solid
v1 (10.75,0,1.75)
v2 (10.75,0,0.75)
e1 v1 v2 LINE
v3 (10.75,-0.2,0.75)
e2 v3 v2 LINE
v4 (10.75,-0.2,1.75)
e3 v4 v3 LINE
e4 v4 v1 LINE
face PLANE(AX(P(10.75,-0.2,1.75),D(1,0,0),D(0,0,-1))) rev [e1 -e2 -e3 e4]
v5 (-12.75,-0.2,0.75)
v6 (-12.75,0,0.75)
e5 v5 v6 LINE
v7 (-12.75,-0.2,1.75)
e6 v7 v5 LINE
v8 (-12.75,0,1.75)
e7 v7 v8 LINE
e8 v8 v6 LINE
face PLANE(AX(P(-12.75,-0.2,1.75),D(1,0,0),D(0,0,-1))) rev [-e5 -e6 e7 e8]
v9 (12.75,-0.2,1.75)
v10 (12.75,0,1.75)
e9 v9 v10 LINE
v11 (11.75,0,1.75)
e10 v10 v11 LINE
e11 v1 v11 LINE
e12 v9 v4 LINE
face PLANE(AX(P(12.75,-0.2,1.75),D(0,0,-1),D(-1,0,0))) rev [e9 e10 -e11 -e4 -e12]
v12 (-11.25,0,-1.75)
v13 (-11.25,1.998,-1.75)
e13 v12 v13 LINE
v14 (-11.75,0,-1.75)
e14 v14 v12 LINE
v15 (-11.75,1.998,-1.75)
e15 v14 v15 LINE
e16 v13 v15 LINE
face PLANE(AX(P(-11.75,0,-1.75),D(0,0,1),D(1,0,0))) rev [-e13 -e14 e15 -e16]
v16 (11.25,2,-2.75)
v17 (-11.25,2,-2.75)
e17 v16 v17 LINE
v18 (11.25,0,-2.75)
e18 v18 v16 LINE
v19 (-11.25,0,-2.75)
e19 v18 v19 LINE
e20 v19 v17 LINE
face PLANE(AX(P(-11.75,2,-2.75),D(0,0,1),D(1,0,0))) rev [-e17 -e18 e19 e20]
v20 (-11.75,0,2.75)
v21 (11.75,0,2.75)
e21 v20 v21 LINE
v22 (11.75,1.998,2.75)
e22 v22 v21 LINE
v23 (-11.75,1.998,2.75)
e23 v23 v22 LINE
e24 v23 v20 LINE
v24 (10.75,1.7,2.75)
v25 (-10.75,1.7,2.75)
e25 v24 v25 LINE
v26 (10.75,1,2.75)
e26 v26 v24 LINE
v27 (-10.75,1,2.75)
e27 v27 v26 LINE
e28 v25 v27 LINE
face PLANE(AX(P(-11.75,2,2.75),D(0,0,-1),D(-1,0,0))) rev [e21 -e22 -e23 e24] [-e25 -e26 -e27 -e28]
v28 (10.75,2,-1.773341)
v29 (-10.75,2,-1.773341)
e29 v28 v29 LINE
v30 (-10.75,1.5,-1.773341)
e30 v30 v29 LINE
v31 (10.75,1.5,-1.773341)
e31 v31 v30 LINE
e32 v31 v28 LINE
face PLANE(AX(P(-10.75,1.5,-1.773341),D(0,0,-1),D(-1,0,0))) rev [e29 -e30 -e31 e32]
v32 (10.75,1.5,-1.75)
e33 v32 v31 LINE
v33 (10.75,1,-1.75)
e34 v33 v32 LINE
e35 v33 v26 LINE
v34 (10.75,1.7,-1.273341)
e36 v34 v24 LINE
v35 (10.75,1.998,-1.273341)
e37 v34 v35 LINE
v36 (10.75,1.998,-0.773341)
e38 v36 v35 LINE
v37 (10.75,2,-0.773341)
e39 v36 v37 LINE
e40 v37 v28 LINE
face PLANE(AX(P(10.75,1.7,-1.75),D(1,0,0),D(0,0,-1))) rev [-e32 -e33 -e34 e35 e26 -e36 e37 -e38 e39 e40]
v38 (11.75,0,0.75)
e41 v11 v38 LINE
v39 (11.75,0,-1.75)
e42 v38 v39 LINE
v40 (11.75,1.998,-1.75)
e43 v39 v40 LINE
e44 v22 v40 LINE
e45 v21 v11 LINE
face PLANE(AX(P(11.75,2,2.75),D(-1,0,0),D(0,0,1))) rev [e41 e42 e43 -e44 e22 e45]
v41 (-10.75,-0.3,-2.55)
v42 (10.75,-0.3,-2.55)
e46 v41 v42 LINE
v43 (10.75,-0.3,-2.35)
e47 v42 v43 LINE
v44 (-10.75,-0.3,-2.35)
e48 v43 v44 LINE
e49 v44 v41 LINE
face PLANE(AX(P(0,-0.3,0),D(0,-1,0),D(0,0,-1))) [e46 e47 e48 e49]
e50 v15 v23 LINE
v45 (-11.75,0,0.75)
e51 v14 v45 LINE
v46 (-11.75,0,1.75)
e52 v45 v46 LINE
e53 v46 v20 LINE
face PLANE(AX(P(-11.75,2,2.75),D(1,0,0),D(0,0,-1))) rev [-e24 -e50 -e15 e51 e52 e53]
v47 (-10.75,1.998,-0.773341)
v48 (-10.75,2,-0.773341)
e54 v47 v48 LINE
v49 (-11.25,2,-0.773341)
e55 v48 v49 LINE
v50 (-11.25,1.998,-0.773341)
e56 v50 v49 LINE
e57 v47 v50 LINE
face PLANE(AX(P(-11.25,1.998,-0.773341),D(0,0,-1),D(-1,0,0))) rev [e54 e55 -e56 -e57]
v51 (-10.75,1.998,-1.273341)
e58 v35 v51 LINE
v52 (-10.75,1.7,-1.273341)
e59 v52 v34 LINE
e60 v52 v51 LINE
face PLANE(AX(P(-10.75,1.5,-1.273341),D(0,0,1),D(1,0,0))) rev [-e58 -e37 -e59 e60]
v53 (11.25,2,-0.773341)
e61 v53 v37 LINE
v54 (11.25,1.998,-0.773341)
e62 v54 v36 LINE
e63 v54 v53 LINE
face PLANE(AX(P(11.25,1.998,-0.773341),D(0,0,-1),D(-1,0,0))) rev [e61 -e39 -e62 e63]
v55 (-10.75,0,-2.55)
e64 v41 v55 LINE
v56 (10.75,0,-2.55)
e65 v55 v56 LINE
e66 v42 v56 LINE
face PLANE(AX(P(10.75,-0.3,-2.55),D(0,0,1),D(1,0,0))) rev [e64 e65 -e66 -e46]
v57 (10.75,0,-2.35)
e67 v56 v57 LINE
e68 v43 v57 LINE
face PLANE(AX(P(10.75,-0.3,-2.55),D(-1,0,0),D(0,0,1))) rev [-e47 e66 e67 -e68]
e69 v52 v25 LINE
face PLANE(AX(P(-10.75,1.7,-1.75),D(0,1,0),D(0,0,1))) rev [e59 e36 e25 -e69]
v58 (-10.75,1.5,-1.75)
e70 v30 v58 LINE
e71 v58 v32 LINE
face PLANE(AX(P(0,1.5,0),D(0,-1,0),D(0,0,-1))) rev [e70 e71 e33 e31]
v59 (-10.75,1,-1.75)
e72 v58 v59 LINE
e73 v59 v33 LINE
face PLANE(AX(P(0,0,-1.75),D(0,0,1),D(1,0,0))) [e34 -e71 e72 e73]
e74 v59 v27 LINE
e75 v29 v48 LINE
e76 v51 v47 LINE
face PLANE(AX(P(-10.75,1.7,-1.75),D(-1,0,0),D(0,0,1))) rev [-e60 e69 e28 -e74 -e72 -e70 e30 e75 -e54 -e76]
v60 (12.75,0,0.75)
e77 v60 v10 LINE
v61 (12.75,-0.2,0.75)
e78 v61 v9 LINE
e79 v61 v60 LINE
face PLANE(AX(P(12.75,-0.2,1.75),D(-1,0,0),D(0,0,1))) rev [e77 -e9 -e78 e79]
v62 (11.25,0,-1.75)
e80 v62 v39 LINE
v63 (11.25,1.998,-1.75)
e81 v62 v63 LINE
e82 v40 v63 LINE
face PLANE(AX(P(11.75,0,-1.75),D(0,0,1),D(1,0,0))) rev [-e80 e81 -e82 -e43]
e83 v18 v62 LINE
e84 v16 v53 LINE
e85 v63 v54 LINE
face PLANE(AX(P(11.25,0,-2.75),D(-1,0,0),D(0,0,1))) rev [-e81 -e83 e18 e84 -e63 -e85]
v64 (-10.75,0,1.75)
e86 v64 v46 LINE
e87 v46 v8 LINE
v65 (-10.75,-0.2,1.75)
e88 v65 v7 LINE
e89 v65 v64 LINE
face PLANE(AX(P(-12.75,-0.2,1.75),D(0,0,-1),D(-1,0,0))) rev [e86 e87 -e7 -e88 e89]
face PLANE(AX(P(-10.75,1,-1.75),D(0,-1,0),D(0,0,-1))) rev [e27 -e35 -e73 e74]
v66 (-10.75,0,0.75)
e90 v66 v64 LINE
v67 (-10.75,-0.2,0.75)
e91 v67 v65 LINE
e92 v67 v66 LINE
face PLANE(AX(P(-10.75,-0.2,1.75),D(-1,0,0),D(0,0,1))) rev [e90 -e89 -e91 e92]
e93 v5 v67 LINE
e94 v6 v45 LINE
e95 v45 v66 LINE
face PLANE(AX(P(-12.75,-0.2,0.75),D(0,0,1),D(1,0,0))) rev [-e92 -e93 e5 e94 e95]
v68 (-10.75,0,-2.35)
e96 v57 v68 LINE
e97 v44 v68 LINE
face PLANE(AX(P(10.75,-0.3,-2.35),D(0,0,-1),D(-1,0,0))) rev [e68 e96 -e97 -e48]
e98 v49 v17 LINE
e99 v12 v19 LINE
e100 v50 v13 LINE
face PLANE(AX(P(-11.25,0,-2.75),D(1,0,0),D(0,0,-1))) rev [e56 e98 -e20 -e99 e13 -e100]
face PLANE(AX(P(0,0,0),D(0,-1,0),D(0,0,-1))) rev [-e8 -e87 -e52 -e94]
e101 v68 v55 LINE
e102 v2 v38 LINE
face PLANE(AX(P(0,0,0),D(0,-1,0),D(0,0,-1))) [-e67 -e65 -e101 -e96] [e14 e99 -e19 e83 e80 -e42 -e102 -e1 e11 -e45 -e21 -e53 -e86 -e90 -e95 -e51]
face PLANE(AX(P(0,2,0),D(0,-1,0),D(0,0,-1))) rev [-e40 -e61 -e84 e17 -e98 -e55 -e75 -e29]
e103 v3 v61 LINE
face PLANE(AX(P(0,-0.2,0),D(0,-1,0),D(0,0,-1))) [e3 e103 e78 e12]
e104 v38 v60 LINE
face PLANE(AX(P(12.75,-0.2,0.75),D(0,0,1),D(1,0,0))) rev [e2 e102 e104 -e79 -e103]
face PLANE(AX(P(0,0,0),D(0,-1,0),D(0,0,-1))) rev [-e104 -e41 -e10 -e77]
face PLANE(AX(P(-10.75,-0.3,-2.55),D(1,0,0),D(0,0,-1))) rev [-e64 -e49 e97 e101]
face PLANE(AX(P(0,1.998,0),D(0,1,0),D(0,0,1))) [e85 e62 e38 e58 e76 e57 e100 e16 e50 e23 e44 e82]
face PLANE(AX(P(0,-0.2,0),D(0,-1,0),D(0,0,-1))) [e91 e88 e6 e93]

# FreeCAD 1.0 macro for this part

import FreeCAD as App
import Part
import Sketcher
from FreeCAD import Vector

doc = App.newDocument("Part")
body = doc.addObject("PartDesign::Body", "Body")

sketch1 = body.newObject("Sketcher::SketchObject", "Sketch")
sketch1.AttachmentSupport = (doc.getObject("XZ_Plane"), [""])
sketch1.MapMode = "FlatFace"
sketch1.addGeometry([
    Part.LineSegment(Vector(-12, -3, 0), Vector(-12, 3, 0)),
    Part.LineSegment(Vector(-12, 3, 0), Vector(12, 3, 0)),
    Part.LineSegment(Vector(12, 3, 0), Vector(12, -3, 0)),
    Part.LineSegment(Vector(12, -3, 0), Vector(-12, -3, 0)),
], False)
sketch1.addConstraint([
    Sketcher.Constraint("Coincident", 0, 2, 1, 1),
    Sketcher.Constraint("Coincident", 1, 2, 2, 1),
    Sketcher.Constraint("Coincident", 2, 2, 3, 1),
    Sketcher.Constraint("Coincident", 3, 2, 0, 1),
    Sketcher.Constraint("Vertical", 0),
    Sketcher.Constraint("Horizontal", 1),
    Sketcher.Constraint("Vertical", 2),
    Sketcher.Constraint("Horizontal", 3),
    Sketcher.Constraint("Symmetric", 0, 2, 2, 2, -1, 1),
    Sketcher.Constraint("DistanceX", 1, 1, 1, 2, 23.5),
    Sketcher.Constraint("DistanceY", 0, 1, 0, 2, 5.5),
])
pad1 = body.newObject("PartDesign::Pad", "Pad")
pad1.Profile = sketch1
pad1.Length = 2
pad1.Reversed = True

sketch2 = body.newObject("Sketcher::SketchObject", "Sketch001")
sketch2.AttachmentSupport = (doc.getObject("XZ_Plane"), [""])
sketch2.MapMode = "FlatFace"
sketch2.AttachmentOffset = App.Placement(Vector(0, 0, -2), App.Rotation())
sketch2.addGeometry([
    Part.LineSegment(Vector(-11.8, -2.8, 0), Vector(-11.8, -1.8, 0)),
    Part.LineSegment(Vector(-11.8, -1.8, 0), Vector(-11.2, -1.8, 0)),
    Part.LineSegment(Vector(-11.2, -1.8, 0), Vector(-11.2, -2.8, 0)),
    Part.LineSegment(Vector(-11.2, -2.8, 0), Vector(-11.8, -2.8, 0)),
    Part.LineSegment(Vector(11.2, -2.8, 0), Vector(11.2, -1.8, 0)),
    Part.LineSegment(Vector(11.2, -1.8, 0), Vector(11.8, -1.8, 0)),
    Part.LineSegment(Vector(11.8, -1.8, 0), Vector(11.8, -2.8, 0)),
    Part.LineSegment(Vector(11.8, -2.8, 0), Vector(11.2, -2.8, 0)),
], False)
sketch2.addConstraint([
    Sketcher.Constraint("Coincident", 0, 2, 1, 1),
    Sketcher.Constraint("Coincident", 1, 2, 2, 1),
    Sketcher.Constraint("Coincident", 2, 2, 3, 1),
    Sketcher.Constraint("Coincident", 3, 2, 0, 1),
    Sketcher.Constraint("Coincident", 4, 2, 5, 1),
    Sketcher.Constraint("Coincident", 5, 2, 6, 1),
    Sketcher.Constraint("Coincident", 6, 2, 7, 1),
    Sketcher.Constraint("Coincident", 7, 2, 4, 1),
    Sketcher.Constraint("Vertical", 0),
    Sketcher.Constraint("Horizontal", 1),
    Sketcher.Constraint("Vertical", 2),
    Sketcher.Constraint("Horizontal", 3),
    Sketcher.Constraint("Vertical", 4),
    Sketcher.Constraint("Horizontal", 5),
    Sketcher.Constraint("Vertical", 6),
    Sketcher.Constraint("Horizontal", 7),
    Sketcher.Constraint("Symmetric", 1, 2, 4, 2, -2),
    Sketcher.Constraint("Symmetric", 3, 2, 6, 2, -2),
    Sketcher.Constraint("DistanceY", 0, 1, 0, 2, 1.0),
    Sketcher.Constraint("DistanceX", 1, 1, 1, 2, 0.5),
    Sketcher.Constraint("DistanceX", 0, 2, 4, 2, 23.0),
    Sketcher.Constraint("DistanceY", 0, 2, -1, 1, 1.75),
])
pocket1 = body.newObject("PartDesign::Pocket", "Pocket")
pocket1.Profile = sketch2
pocket1.Type = "ThroughAll"
pocket1.Reversed = True

sketch3 = body.newObject("Sketcher::SketchObject", "Sketch002")
sketch3.AttachmentSupport = (doc.getObject("XZ_Plane"), [""])
sketch3.MapMode = "FlatFace"
sketch3.addGeometry([
    Part.LineSegment(Vector(-12.8, 1.8, 0), Vector(-12.8, 0.8, 0)),
    Part.LineSegment(Vector(-12.8, 0.8, 0), Vector(-10.8, 0.8, 0)),
    Part.LineSegment(Vector(-10.8, 0.8, 0), Vector(-10.8, 1.8, 0)),
    Part.LineSegment(Vector(-10.8, 1.8, 0), Vector(-12.8, 1.8, 0)),
    Part.LineSegment(Vector(10.8, 1.8, 0), Vector(10.8, 0.8, 0)),
    Part.LineSegment(Vector(10.8, 0.8, 0), Vector(12.8, 0.8, 0)),
    Part.LineSegment(Vector(12.8, 0.8, 0), Vector(12.8, 1.8, 0)),
    Part.LineSegment(Vector(12.8, 1.8, 0), Vector(10.8, 1.8, 0)),
], False)
sketch3.addConstraint([
    Sketcher.Constraint("Coincident", 0, 2, 1, 1),
    Sketcher.Constraint("Coincident", 1, 2, 2, 1),
    Sketcher.Constraint("Coincident", 2, 2, 3, 1),
    Sketcher.Constraint("Coincident", 3, 2, 0, 1),
    Sketcher.Constraint("Coincident", 4, 2, 5, 1),
    Sketcher.Constraint("Coincident", 5, 2, 6, 1),
    Sketcher.Constraint("Coincident", 6, 2, 7, 1),
    Sketcher.Constraint("Coincident", 7, 2, 4, 1),
    Sketcher.Constraint("Vertical", 0),
    Sketcher.Constraint("Horizontal", 1),
    Sketcher.Constraint("Vertical", 2),
    Sketcher.Constraint("Horizontal", 3),
    Sketcher.Constraint("Vertical", 4),
    Sketcher.Constraint("Horizontal", 5),
    Sketcher.Constraint("Vertical", 6),
    Sketcher.Constraint("Horizontal", 7),
    Sketcher.Constraint("Symmetric", 1, 2, 4, 2, -2),
    Sketcher.Constraint("Symmetric", 3, 2, 6, 2, -2),
    Sketcher.Constraint("DistanceX", 1, 1, 1, 2, 2.0),
    Sketcher.Constraint("DistanceY", 0, 2, 0, 1, 1.0),
    Sketcher.Constraint("DistanceX", 1, 2, 4, 2, 21.5),
    Sketcher.Constraint("DistanceY", -1, 1, 0, 2, 0.75),
])
pad2 = body.newObject("PartDesign::Pad", "Pad001")
pad2.Profile = sketch3
pad2.Length = 0.2

sketch4 = body.newObject("Sketcher::SketchObject", "Sketch003")
sketch4.AttachmentSupport = (doc.getObject("XZ_Plane"), [""])
sketch4.MapMode = "FlatFace"
sketch4.addGeometry([
    Part.LineSegment(Vector(-10.75, -2.35, 0), Vector(-10.75, -2.55, 0)),
    Part.LineSegment(Vector(-10.75, -2.55, 0), Vector(10.75, -2.55, 0)),
    Part.LineSegment(Vector(10.75, -2.55, 0), Vector(10.75, -2.35, 0)),
    Part.LineSegment(Vector(10.75, -2.35, 0), Vector(-10.75, -2.35, 0)),
], False)
sketch4.addConstraint([
    Sketcher.Constraint("Coincident", 0, 2, 1, 1),
    Sketcher.Constraint("Coincident", 1, 2, 2, 1),
    Sketcher.Constraint("Coincident", 2, 2, 3, 1),
    Sketcher.Constraint("Coincident", 3, 2, 0, 1),
    Sketcher.Constraint("Vertical", 0),
    Sketcher.Constraint("Horizontal", 1),
    Sketcher.Constraint("Vertical", 2),
    Sketcher.Constraint("Horizontal", 3),
    Sketcher.Constraint("DistanceX", 1, 1, 1, 2, 21.5),
    Sketcher.Constraint("DistanceY", 0, 2, 0, 1, 0.2),
    Sketcher.Constraint("DistanceX", 0, 2, -1, 1, 10.75),
    Sketcher.Constraint("DistanceY", 0, 2, -1, 1, 2.55),
])
pad3 = body.newObject("PartDesign::Pad", "Pad002")
pad3.Profile = sketch4
pad3.Length = 0.3

sketch5 = body.newObject("Sketcher::SketchObject", "Sketch004")
sketch5.AttachmentSupport = (doc.getObject("XY_Plane"), [""])
sketch5.MapMode = "FlatFace"
sketch5.AttachmentOffset = App.Placement(Vector(0, 0, 2.75), App.Rotation())
sketch5.addGeometry([
    Part.LineSegment(Vector(-10.8, 1.7, 0), Vector(-10.8, 1, 0)),
    Part.LineSegment(Vector(-10.8, 1, 0), Vector(10.8, 1, 0)),
    Part.LineSegment(Vector(10.8, 1, 0), Vector(10.8, 1.7, 0)),
    Part.LineSegment(Vector(10.8, 1.7, 0), Vector(-10.8, 1.7, 0)),
], False)
sketch5.addConstraint([
    Sketcher.Constraint("Coincident", 0, 2, 1, 1),
    Sketcher.Constraint("Coincident", 1, 2, 2, 1),
    Sketcher.Constraint("Coincident", 2, 2, 3, 1),
    Sketcher.Constraint("Coincident", 3, 2, 0, 1),
    Sketcher.Constraint("Vertical", 0),
    Sketcher.Constraint("Horizontal", 1),
    Sketcher.Constraint("Vertical", 2),
    Sketcher.Constraint("Horizontal", 3),
    Sketcher.Constraint("DistanceX", 1, 1, 1, 2, 21.5),
    Sketcher.Constraint("DistanceY", 0, 2, 0, 1, 0.7),
    Sketcher.Constraint("DistanceY", -1, 1, 0, 2, 1.0),
    Sketcher.Constraint("DistanceX", 0, 2, -1, 1, 10.75),
])
pocket2 = body.newObject("PartDesign::Pocket", "Pocket001")
pocket2.Profile = sketch5
pocket2.Length = 4.5

sketch6 = body.newObject("Sketcher::SketchObject", "Sketch005")
sketch6.AttachmentSupport = (doc.getObject("XZ_Plane"), [""])
sketch6.MapMode = "FlatFace"
sketch6.AttachmentOffset = App.Placement(Vector(0, 0, -2), App.Rotation())
sketch6.addGeometry([
    Part.LineSegment(Vector(-11.2, -0.8, 0), Vector(-11.2, -1.8, 0)),
    Part.LineSegment(Vector(-11.2, -1.8, 0), Vector(-11.8, -1.8, 0)),
    Part.LineSegment(Vector(-11.8, -1.8, 0), Vector(-11.8, 2.8, 0)),
    Part.LineSegment(Vector(-11.8, 2.8, 0), Vector(11.8, 2.8, 0)),
    Part.LineSegment(Vector(11.8, 2.8, 0), Vector(11.8, -1.8, 0)),
    Part.LineSegment(Vector(11.8, -1.8, 0), Vector(11.2, -1.8, 0)),
    Part.LineSegment(Vector(11.2, -1.8, 0), Vector(11.2, -0.8, 0)),
    Part.LineSegment(Vector(11.2, -0.8, 0), Vector(10.8, -0.8, 0)),
    Part.LineSegment(Vector(10.8, -0.8, 0), Vector(10.8, -1.3, 0)),
    Part.LineSegment(Vector(10.8, -1.3, 0), Vector(-10.8, -1.3, 0)),
    Part.LineSegment(Vector(-10.8, -1.3, 0), Vector(-10.8, -0.8, 0)),
    Part.LineSegment(Vector(-10.8, -0.8, 0), Vector(-11.2, -0.8, 0)),
], False)
sketch6.addConstraint([
    Sketcher.Constraint("Coincident", 0, 2, 1, 1),
    Sketcher.Constraint("Coincident", 1, 2, 2, 1),
    Sketcher.Constraint("Coincident", 2, 2, 3, 1),
    Sketcher.Constraint("Coincident", 3, 2, 4, 1),
    Sketcher.Constraint("Coincident", 4, 2, 5, 1),
    Sketcher.Constraint("Coincident", 5, 2, 6, 1),
    Sketcher.Constraint("Coincident", 6, 2, 7, 1),
    Sketcher.Constraint("Coincident", 7, 2, 8, 1),
    Sketcher.Constraint("Coincident", 8, 2, 9, 1),
    Sketcher.Constraint("Coincident", 9, 2, 10, 1),
    Sketcher.Constraint("Coincident", 10, 2, 11, 1),
    Sketcher.Constraint("Coincident", 11, 2, 0, 1),
    Sketcher.Constraint("Vertical", 0),
    Sketcher.Constraint("Horizontal", 1),
    Sketcher.Constraint("Vertical", 2),
    Sketcher.Constraint("Horizontal", 3),
    Sketcher.Constraint("Vertical", 4),
    Sketcher.Constraint("Horizontal", 5),
    Sketcher.Constraint("Vertical", 6),
    Sketcher.Constraint("Horizontal", 7),
    Sketcher.Constraint("Vertical", 8),
    Sketcher.Constraint("Horizontal", 9),
    Sketcher.Constraint("Vertical", 10),
    Sketcher.Constraint("Horizontal", 11),
    Sketcher.Constraint("Symmetric", 1, 2, 4, 2, -2),
    Sketcher.Constraint("Symmetric", 7, 2, 10, 2, -2),
    Sketcher.Constraint("Equal", 1, 5),
    Sketcher.Constraint("Equal", 5, 7),
    Sketcher.Constraint("Equal", 11, 8),
    Sketcher.Constraint("DistanceX", 1, 2, 1, 1, 0.5),
    Sketcher.Constraint("DistanceX", 3, 1, 3, 2, 23.5),
    Sketcher.Constraint("DistanceY", 2, 1, 2, 2, 4.5),
    Sketcher.Constraint("DistanceY", 0, 2, -1, 1, 1.75),
    Sketcher.Constraint("DistanceY", 0, 2, 0, 1, 0.976659),
])
pocket3 = body.newObject("PartDesign::Pocket", "Pocket002")
pocket3.Profile = sketch6
pocket3.Length = 0.002
pocket3.Reversed = True

sketch7 = body.newObject("Sketcher::SketchObject", "Sketch006")
sketch7.AttachmentSupport = (doc.getObject("XZ_Plane"), [""])
sketch7.MapMode = "FlatFace"
sketch7.AttachmentOffset = App.Placement(Vector(0, 0, -2), App.Rotation())
sketch7.addGeometry([
    Part.LineSegment(Vector(-10.8, -1.8, 0), Vector(-10.8, -1.3, 0)),
    Part.LineSegment(Vector(-10.8, -1.3, 0), Vector(10.8, -1.3, 0)),
    Part.LineSegment(Vector(10.8, -1.3, 0), Vector(10.8, -1.8, 0)),
    Part.LineSegment(Vector(10.8, -1.8, 0), Vector(-10.8, -1.8, 0)),
], False)
sketch7.addConstraint([
    Sketcher.Constraint("Coincident", 0, 2, 1, 1),
    Sketcher.Constraint("Coincident", 1, 2, 2, 1),
    Sketcher.Constraint("Coincident", 2, 2, 3, 1),
    Sketcher.Constraint("Coincident", 3, 2, 0, 1),
    Sketcher.Constraint("Vertical", 0),
    Sketcher.Constraint("Horizontal", 1),
    Sketcher.Constraint("Vertical", 2),
    Sketcher.Constraint("Horizontal", 3),
    Sketcher.Constraint("DistanceX", 1, 1, 1, 2, 21.5),
    Sketcher.Constraint("DistanceY", 0, 1, 0, 2, 0.5),
    Sketcher.Constraint("DistanceX", 0, 2, -1, 1, 10.75),
    Sketcher.Constraint("DistanceY", 0, 2, -1, 1, 1.273341),
])
pocket4 = body.newObject("PartDesign::Pocket", "Pocket003")
pocket4.Profile = sketch7
pocket4.Length = 0.5
pocket4.Reversed = True

doc.recompute()
